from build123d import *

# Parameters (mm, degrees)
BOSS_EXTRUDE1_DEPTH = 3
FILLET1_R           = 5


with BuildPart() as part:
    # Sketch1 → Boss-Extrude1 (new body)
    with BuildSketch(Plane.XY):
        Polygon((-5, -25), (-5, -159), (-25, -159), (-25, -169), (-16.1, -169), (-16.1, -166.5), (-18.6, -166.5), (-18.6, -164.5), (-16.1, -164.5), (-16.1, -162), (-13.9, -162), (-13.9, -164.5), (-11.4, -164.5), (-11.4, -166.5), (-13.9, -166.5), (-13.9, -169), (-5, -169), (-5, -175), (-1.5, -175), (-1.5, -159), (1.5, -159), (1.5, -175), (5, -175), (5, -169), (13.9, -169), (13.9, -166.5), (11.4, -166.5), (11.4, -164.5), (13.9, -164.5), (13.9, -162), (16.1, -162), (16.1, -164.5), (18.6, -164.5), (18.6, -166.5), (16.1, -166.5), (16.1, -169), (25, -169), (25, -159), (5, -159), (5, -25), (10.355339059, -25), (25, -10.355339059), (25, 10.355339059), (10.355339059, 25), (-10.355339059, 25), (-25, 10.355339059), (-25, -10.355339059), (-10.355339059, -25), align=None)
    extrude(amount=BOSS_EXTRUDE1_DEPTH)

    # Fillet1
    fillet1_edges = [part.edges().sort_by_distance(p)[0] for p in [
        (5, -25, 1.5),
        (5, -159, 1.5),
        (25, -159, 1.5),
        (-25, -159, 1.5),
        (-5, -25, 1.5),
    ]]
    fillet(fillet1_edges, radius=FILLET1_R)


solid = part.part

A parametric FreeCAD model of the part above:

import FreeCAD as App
import Part
import Sketcher
Q = App.Units.Quantity


def edges_at(feature, points):
    """Names of the edges that pass closest to the given points."""
    edges = feature.Shape.Edges
    near = lambda p: min(range(len(edges)), key=lambda i: edges[i].distToShape(Part.Vertex(*p))[0])
    return sorted({f"Edge{near(p) + 1}" for p in points})


def add_polygon(sketch, points):
    """Adds a closed chain of lines whose ends are joined by coincident constraints."""
    first, n = sketch.GeometryCount, len(points)
    for a, b in zip(points, points[1:] + points[:1]):
        sketch.addGeometry(Part.LineSegment(App.Vector(*a, 0), App.Vector(*b, 0)), False)
    for i in range(n):
        sketch.addConstraint(Sketcher.Constraint("Coincident", first + i, 2, first + (i + 1) % n, 1))

doc = App.newDocument("Part")
body = doc.addObject("PartDesign::Body", "Body")

# Sketch on XY plane
sketch1 = body.newObject("Sketcher::SketchObject", "Sketch")
sketch1.AttachmentSupport = (doc.getObject("XY_Plane"), [""])
sketch1.MapMode = "FlatFace"
add_polygon(sketch1, [(-5, -25), (-5, -159), (-25, -159), (-25, -169), (-16.1, -169), (-16.1, -166.5), (-18.6, -166.5), (-18.6, -164.5), (-16.1, -164.5), (-16.1, -162), (-13.9, -162), (-13.9, -164.5), (-11.4, -164.5), (-11.4, -166.5), (-13.9, -166.5), (-13.9, -169), (-5, -169), (-5, -175), (-1.5, -175), (-1.5, -159), (1.5, -159), (1.5, -175), (5, -175), (5, -169), (13.9, -169), (13.9, -166.5), (11.4, -166.5), (11.4, -164.5), (13.9, -164.5), (13.9, -162), (16.1, -162), (16.1, -164.5), (18.6, -164.5), (18.6, -166.5), (16.1, -166.5), (16.1, -169), (25, -169), (25, -159), (5, -159), (5, -25), (10.4, -25), (25, -10.4), (25, 10.4), (10.4, 25), (-10.4, 25), (-25, 10.4), (-25, -10.4), (-10.4, -25)])  # lines 0-47
sketch1.addConstraint([
    Sketcher.Constraint("Vertical", 0),
    Sketcher.Constraint("Horizontal", 1),
    Sketcher.Constraint("Vertical", 2),
    Sketcher.Constraint("Horizontal", 3),
    Sketcher.Constraint("Vertical", 4),
    Sketcher.Constraint("Horizontal", 5),
    Sketcher.Constraint("Vertical", 6),
    Sketcher.Constraint("Horizontal", 7),
    Sketcher.Constraint("Vertical", 8),
    Sketcher.Constraint("Horizontal", 9),
    Sketcher.Constraint("Vertical", 10),
    Sketcher.Constraint("Horizontal", 11),
    Sketcher.Constraint("Vertical", 12),
    Sketcher.Constraint("Horizontal", 13),
    Sketcher.Constraint("Vertical", 14),
    Sketcher.Constraint("Horizontal", 15),
    Sketcher.Constraint("Vertical", 16),
    Sketcher.Constraint("Horizontal", 17),
    Sketcher.Constraint("Vertical", 18),
    Sketcher.Constraint("Horizontal", 19),
    Sketcher.Constraint("Vertical", 20),
    Sketcher.Constraint("Horizontal", 21),
    Sketcher.Constraint("Vertical", 22),
    Sketcher.Constraint("Horizontal", 23),
    Sketcher.Constraint("Vertical", 24),
    Sketcher.Constraint("Horizontal", 25),
    Sketcher.Constraint("Vertical", 26),
    Sketcher.Constraint("Horizontal", 27),
    Sketcher.Constraint("Vertical", 28),
    Sketcher.Constraint("Horizontal", 29),
    Sketcher.Constraint("Vertical", 30),
    Sketcher.Constraint("Horizontal", 31),
    Sketcher.Constraint("Vertical", 32),
    Sketcher.Constraint("Horizontal", 33),
    Sketcher.Constraint("Vertical", 34),
    Sketcher.Constraint("Horizontal", 35),
    Sketcher.Constraint("Vertical", 36),
    Sketcher.Constraint("Horizontal", 37),
    Sketcher.Constraint("Vertical", 38),
    Sketcher.Constraint("Horizontal", 39),
    Sketcher.Constraint("Vertical", 41),
    Sketcher.Constraint("Horizontal", 43),
    Sketcher.Constraint("Vertical", 45),
    Sketcher.Constraint("Horizontal", 47),
    Sketcher.Constraint("Symmetric", 39, 2, 43, 2, -1, 1),
    Sketcher.Constraint("Symmetric", 40, 2, 44, 2, -1, 1),
    Sketcher.Constraint("Symmetric", 42, 2, 46, 2, -1, 1),
    Sketcher.Constraint("Symmetric", 17, 2, 20, 2, -2),
    Sketcher.Constraint("Symmetric", 15, 2, 22, 2, -2),
    Sketcher.Constraint("Symmetric", 13, 2, 24, 2, -2),
    Sketcher.Constraint("Symmetric", 11, 2, 26, 2, -2),
    Sketcher.Constraint("Symmetric", 9, 2, 28, 2, -2),
    Sketcher.Constraint("Symmetric", 7, 2, 30, 2, -2),
    Sketcher.Constraint("Symmetric", 5, 2, 32, 2, -2),
    Sketcher.Constraint("Symmetric", 3, 2, 34, 2, -2),
    Sketcher.Constraint("Symmetric", 1, 2, 36, 2, -2),
    Sketcher.Constraint("Perpendicular", 40, 42),
    Sketcher.Constraint("Perpendicular", 44, 46),
    Sketcher.Constraint("Horizontal", 7, 2, 10, 2),
    Sketcher.Constraint("Horizontal", 5, 2, 12, 2),
    Sketcher.Constraint("Horizontal", 3, 2, 14, 2),
    Sketcher.Constraint("Horizontal", 1, 2, 18, 2),
    Sketcher.Constraint("Horizontal", 41, 2, 44, 2),
    Sketcher.Constraint("Vertical", 4, 2, 7, 2),
    Sketcher.Constraint("Vertical", 10, 2, 13, 2),
    Sketcher.Constraint("Vertical", 0, 2, 15, 2),
    Sketcher.Constraint("Vertical", 22, 2, 37, 2),
    Sketcher.Constraint("Vertical", 36, 2, 40, 2),
    Sketcher.Constraint("Vertical", 39, 2, 42, 2),
    Sketcher.Constraint("Equal", 7, 11),
    Sketcher.Constraint("Equal", 3, 15),
    Sketcher.Constraint("Equal", 33, 4),
    Sketcher.Constraint("Equal", 4, 8),
    Sketcher.Constraint("Equal", 43, 41),
    Sketcher.Constraint("DistanceX", 1, 2, 1, 1, Q("20 mm")),
    Sketcher.Constraint("DistanceX", 19, 1, 19, 2, Q("3 mm")),
    Sketcher.Constraint("DistanceY", 0, 2, 0, 1, Q("134 mm")),
    Sketcher.Constraint("DistanceY", 2, 2, 2, 1, Q("10 mm")),
    Sketcher.Constraint("DistanceY", 6, 1, 6, 2, Q("2 mm")),
    Sketcher.Constraint("DistanceY", 16, 2, 16, 1, Q("6 mm")),
    Sketcher.Constraint("DistanceX", 3, 1, 3, 2, Q("8.9 mm")),
    Sketcher.Constraint("DistanceX", 5, 2, 5, 1, Q("2.5 mm")),
    Sketcher.Constraint("DistanceX", 17, 1, 17, 2, Q("3.5 mm")),
    Sketcher.Constraint("DistanceX", 39, 1, 39, 2, Q("5.355339 mm")),
])
pad1 = body.newObject("PartDesign::Pad", "Pad")
pad1.Profile = sketch1
pad1.Length = 3
doc.recompute()

fillet = body.newObject("PartDesign::Fillet", "Fillet")
fillet.Base = (pad1, edges_at(pad1, [
    (5, -25, 1.5),
    (5, -159, 1.5),
    (25, -159, 1.5),
    (-25, -159, 1.5),
    (-5, -25, 1.5),
]))
fillet.Radius = 5

doc.recompute()
